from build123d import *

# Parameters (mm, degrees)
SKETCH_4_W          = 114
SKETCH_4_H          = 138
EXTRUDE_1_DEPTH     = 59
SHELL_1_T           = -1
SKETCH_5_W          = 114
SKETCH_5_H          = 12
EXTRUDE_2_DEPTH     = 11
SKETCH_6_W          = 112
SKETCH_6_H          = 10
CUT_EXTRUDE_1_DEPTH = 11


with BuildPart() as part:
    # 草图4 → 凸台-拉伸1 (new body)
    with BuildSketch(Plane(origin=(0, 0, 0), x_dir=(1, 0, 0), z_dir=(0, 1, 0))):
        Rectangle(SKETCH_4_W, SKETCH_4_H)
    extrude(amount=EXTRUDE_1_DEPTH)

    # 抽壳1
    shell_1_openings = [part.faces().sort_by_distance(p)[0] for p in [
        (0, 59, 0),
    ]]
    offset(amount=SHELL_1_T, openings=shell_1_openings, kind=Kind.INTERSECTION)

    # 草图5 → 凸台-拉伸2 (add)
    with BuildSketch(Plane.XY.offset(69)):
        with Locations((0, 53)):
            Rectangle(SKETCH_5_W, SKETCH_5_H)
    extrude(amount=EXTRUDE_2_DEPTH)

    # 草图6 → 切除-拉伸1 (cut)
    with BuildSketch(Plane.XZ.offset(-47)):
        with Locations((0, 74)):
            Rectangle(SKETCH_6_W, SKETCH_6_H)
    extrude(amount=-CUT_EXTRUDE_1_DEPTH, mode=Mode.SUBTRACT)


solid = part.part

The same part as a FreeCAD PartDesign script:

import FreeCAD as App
import Part
import Sketcher
from FreeCAD import Vector


def faces_at(feature, points):
    """Names of the faces that lie closest to the given points."""
    faces = feature.Shape.Faces
    near = lambda p: min(range(len(faces)), key=lambda i: faces[i].distToShape(Part.Vertex(*p))[0])
    return sorted({f"Face{near(p) + 1}" for p in points})

doc = App.newDocument("Part")
body = doc.addObject("PartDesign::Body", "Body")

sketch1 = body.newObject("Sketcher::SketchObject", "Sketch")
sketch1.AttachmentSupport = (doc.getObject("XZ_Plane"), [""])
sketch1.MapMode = "FlatFace"
sketch1.addGeometry(Part.LineSegment(Vector(-57, -69, 0), Vector(-57, 69, 0)), False)
sketch1.addGeometry(Part.LineSegment(Vector(-57, 69, 0), Vector(57, 69, 0)), False)
sketch1.addGeometry(Part.LineSegment(Vector(57, 69, 0), Vector(57, -69, 0)), False)
sketch1.addGeometry(Part.LineSegment(Vector(57, -69, 0), Vector(-57, -69, 0)), False)
sketch1.addConstraint(Sketcher.Constraint("Coincident", 0, 2, 1, 1))
sketch1.addConstraint(Sketcher.Constraint("Coincident", 1, 2, 2, 1))
sketch1.addConstraint(Sketcher.Constraint("Coincident", 2, 2, 3, 1))
sketch1.addConstraint(Sketcher.Constraint("Coincident", 3, 2, 0, 1))
sketch1.addConstraint(Sketcher.Constraint("Vertical", 0))
sketch1.addConstraint(Sketcher.Constraint("Horizontal", 1))
sketch1.addConstraint(Sketcher.Constraint("Vertical", 2))
sketch1.addConstraint(Sketcher.Constraint("Horizontal", 3))
sketch1.addConstraint(Sketcher.Constraint("Symmetric", 0, 2, 2, 2, -1, 1))
sketch1.addConstraint(Sketcher.Constraint("DistanceX", 1, 1, 1, 2, 114.0))
sketch1.addConstraint(Sketcher.Constraint("DistanceY", 0, 1, 0, 2, 138.0))
pad1 = body.newObject("PartDesign::Pad", "Pad")
pad1.Profile = sketch1
pad1.Length = 59
pad1.Reversed = True
doc.recompute()

thickness = body.newObject("PartDesign::Thickness", "Thickness")
thickness.Base = (pad1, faces_at(pad1, [(0, 59, 0)]))
thickness.Value = 1
thickness.Reversed = True
thickness.Join = "Intersection"

sketch2 = body.newObject("Sketcher::SketchObject", "Sketch001")
sketch2.AttachmentSupport = (doc.getObject("XY_Plane"), [""])
sketch2.MapMode = "FlatFace"
sketch2.AttachmentOffset = App.Placement(Vector(0, 0, 69), App.Rotation())
sketch2.addGeometry(Part.LineSegment(Vector(-57, 59, 0), Vector(-57, 47, 0)), False)
sketch2.addGeometry(Part.LineSegment(Vector(-57, 47, 0), Vector(57, 47, 0)), False)
sketch2.addGeometry(Part.LineSegment(Vector(57, 47, 0), Vector(57, 59, 0)), False)
sketch2.addGeometry(Part.LineSegment(Vector(57, 59, 0), Vector(-57, 59, 0)), False)
sketch2.addConstraint(Sketcher.Constraint("Coincident", 0, 2, 1, 1))
sketch2.addConstraint(Sketcher.Constraint("Coincident", 1, 2, 2, 1))
sketch2.addConstraint(Sketcher.Constraint("Coincident", 2, 2, 3, 1))
sketch2.addConstraint(Sketcher.Constraint("Coincident", 3, 2, 0, 1))
sketch2.addConstraint(Sketcher.Constraint("Vertical", 0))
sketch2.addConstraint(Sketcher.Constraint("Horizontal", 1))
sketch2.addConstraint(Sketcher.Constraint("Vertical", 2))
sketch2.addConstraint(Sketcher.Constraint("Horizontal", 3))
sketch2.addConstraint(Sketcher.Constraint("DistanceX", 1, 1, 1, 2, 114.0))
sketch2.addConstraint(Sketcher.Constraint("DistanceY", 0, 2, 0, 1, 12.0))
sketch2.addConstraint(Sketcher.Constraint("DistanceX", 0, 2, -1, 1, 57.0))
sketch2.addConstraint(Sketcher.Constraint("DistanceY", -1, 1, 0, 2, 47.0))
pad2 = body.newObject("PartDesign::Pad", "Pad001")
pad2.Profile = sketch2
pad2.Length = 11

sketch3 = body.newObject("Sketcher::SketchObject", "Sketch002")
sketch3.AttachmentSupport = (doc.getObject("XZ_Plane"), [""])
sketch3.MapMode = "FlatFace"
sketch3.AttachmentOffset = App.Placement(Vector(0, 0, -47), App.Rotation())
sketch3.addGeometry(Part.LineSegment(Vector(-56, 79, 0), Vector(-56, 69, 0)), False)
sketch3.addGeometry(Part.LineSegment(Vector(-56, 69, 0), Vector(56, 69, 0)), False)
sketch3.addGeometry(Part.LineSegment(Vector(56, 69, 0), Vector(56, 79, 0)), False)
sketch3.addGeometry(Part.LineSegment(Vector(56, 79, 0), Vector(-56, 79, 0)), False)
sketch3.addConstraint(Sketcher.Constraint("Coincident", 0, 2, 1, 1))
sketch3.addConstraint(Sketcher.Constraint("Coincident", 1, 2, 2, 1))
sketch3.addConstraint(Sketcher.Constraint("Coincident", 2, 2, 3, 1))
sketch3.addConstraint(Sketcher.Constraint("Coincident", 3, 2, 0, 1))
sketch3.addConstraint(Sketcher.Constraint("Vertical", 0))
sketch3.addConstraint(Sketcher.Constraint("Horizontal", 1))
sketch3.addConstraint(Sketcher.Constraint("Vertical", 2))
sketch3.addConstraint(Sketcher.Constraint("Horizontal", 3))
sketch3.addConstraint(Sketcher.Constraint("DistanceX", 1, 1, 1, 2, 112.0))
sketch3.addConstraint(Sketcher.Constraint("DistanceY", 0, 2, 0, 1, 10.0))
sketch3.addConstraint(Sketcher.Constraint("DistanceX", 0, 2, -1, 1, 56.0))
sketch3.addConstraint(Sketcher.Constraint("DistanceY", -1, 1, 0, 2, 69.0))
pocket1 = body.newObject("PartDesign::Pocket", "Pocket")
pocket1.Profile = sketch3
pocket1.Length = 11

doc.recompute()
